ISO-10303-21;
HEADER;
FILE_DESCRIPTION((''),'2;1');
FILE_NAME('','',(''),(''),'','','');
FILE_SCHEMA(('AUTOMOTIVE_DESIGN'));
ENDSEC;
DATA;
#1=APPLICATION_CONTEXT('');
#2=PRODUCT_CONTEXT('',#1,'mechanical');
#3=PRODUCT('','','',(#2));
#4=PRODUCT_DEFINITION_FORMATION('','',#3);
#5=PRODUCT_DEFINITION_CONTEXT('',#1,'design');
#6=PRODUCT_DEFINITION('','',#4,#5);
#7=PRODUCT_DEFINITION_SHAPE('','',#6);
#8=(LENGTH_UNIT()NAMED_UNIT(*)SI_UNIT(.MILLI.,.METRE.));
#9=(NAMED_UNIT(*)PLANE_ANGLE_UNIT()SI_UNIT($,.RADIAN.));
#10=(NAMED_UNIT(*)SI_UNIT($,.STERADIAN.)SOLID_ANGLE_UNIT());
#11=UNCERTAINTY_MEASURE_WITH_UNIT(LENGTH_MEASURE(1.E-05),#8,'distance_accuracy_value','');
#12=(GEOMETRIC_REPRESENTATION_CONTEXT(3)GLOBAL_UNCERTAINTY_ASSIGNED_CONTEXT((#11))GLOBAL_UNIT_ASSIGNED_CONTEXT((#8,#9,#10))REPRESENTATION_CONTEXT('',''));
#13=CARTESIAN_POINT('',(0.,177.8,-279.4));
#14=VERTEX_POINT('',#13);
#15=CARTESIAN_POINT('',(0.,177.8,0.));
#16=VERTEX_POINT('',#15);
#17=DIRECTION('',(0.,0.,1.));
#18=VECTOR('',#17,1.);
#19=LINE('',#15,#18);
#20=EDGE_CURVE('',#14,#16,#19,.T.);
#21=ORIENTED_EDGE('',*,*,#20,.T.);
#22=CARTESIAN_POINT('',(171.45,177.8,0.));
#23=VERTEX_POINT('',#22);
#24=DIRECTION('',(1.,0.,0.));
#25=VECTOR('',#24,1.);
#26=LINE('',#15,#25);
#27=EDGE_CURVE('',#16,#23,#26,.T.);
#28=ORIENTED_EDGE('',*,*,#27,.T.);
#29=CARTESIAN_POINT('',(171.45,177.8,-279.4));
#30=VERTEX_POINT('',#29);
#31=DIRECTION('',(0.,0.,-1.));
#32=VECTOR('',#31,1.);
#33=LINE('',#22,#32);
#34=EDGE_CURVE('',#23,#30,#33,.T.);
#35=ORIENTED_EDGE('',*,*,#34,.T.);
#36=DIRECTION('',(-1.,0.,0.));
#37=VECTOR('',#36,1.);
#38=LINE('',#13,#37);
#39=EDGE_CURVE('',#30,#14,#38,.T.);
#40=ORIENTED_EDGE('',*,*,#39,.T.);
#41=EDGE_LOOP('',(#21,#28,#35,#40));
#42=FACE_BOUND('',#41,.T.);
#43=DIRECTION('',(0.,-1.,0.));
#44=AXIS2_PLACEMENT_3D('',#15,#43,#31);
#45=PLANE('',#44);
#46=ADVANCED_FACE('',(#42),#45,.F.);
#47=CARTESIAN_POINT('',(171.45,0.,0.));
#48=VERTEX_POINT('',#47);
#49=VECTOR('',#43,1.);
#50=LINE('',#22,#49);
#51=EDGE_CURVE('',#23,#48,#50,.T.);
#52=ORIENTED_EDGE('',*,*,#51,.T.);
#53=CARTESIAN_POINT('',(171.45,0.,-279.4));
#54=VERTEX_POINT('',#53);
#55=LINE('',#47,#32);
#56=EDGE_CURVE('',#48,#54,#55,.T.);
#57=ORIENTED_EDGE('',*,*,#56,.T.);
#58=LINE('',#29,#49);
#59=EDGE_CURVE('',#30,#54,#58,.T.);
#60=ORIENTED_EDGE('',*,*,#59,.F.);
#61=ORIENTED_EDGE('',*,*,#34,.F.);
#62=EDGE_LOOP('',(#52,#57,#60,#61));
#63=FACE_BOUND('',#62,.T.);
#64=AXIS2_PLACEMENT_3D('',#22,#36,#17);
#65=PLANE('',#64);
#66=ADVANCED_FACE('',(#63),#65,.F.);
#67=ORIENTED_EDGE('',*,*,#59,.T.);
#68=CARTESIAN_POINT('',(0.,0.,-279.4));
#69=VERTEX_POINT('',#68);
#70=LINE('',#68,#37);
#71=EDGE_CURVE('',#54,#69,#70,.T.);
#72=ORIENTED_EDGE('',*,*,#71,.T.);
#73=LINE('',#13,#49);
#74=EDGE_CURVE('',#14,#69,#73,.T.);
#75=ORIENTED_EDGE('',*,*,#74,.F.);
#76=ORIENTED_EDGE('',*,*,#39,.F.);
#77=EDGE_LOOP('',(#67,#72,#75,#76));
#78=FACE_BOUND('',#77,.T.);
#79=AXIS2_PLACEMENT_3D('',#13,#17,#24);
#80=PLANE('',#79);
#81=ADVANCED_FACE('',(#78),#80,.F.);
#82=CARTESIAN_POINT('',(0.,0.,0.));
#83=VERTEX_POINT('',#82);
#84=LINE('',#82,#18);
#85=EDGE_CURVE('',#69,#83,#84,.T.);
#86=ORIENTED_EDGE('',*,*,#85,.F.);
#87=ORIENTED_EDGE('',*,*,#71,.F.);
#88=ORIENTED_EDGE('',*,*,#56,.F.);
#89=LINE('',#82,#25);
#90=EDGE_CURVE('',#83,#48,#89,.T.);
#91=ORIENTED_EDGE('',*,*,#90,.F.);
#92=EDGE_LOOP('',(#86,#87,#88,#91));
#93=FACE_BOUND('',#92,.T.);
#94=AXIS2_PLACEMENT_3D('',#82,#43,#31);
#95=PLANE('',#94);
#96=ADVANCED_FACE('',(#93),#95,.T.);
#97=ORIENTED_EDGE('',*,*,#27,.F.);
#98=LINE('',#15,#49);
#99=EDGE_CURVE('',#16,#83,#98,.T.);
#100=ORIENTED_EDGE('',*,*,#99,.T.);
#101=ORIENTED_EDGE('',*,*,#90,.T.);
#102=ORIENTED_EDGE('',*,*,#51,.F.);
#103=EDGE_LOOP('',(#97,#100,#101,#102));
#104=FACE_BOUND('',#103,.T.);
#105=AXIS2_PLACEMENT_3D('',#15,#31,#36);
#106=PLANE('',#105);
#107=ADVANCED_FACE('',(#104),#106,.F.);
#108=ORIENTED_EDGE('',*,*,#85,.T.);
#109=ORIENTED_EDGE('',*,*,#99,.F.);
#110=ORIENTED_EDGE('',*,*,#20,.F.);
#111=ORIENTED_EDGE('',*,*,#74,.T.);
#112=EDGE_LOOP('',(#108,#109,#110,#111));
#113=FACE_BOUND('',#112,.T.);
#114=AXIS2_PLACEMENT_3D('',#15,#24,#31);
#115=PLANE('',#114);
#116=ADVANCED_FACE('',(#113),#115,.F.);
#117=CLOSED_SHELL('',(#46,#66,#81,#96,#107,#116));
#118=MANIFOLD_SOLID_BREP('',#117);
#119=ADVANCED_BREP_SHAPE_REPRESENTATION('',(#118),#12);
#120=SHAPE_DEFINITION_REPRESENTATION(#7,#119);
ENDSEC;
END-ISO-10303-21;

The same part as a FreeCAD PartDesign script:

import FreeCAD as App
import Part
import Sketcher

V = App.Vector
Q = App.Units.Quantity

doc = App.newDocument("Part")
params = doc.addObject("Spreadsheet::Sheet", "Params")
for row, (alias, value) in enumerate([
    ("sketch1_height", "11 in"),
    ("sketch1_width", "6.75 in"),
    ("pad1_length", "7 in"),
], start=1):
    params.set(f"A{row}", alias)
    params.set(f"B{row}", "=" + value)
    params.setAlias(f"B{row}", alias)

body = doc.addObject("PartDesign::Body", "Body")

sketch1 = body.newObject("Sketcher::SketchObject", "Sketch")
sketch1.AttachmentSupport = (doc.getObject("XZ_Plane"), [""])
sketch1.MapMode = "FlatFace"
sketch1.addGeometry([
    Part.LineSegment(V(0, -279.4, 0), V(0, 0, 0)),
    Part.LineSegment(V(0, 0, 0), V(171.45, 0, 0)),
    Part.LineSegment(V(171.45, 0, 0), V(171.45, -279.4, 0)),
    Part.LineSegment(V(171.45, -279.4, 0), V(0, -279.4, 0)),
], False)
sketch1.addConstraint([
    Sketcher.Constraint("Coincident", 0, 2, 1, 1),
    Sketcher.Constraint("Coincident", 1, 2, 2, 1),
    Sketcher.Constraint("Coincident", 2, 2, 3, 1),
    Sketcher.Constraint("Coincident", 3, 2, 0, 1),
    Sketcher.Constraint("Vertical", 0),
    Sketcher.Constraint("Horizontal", 1),
    Sketcher.Constraint("Vertical", 2),
    Sketcher.Constraint("Horizontal", 3),
    Sketcher.Constraint("Coincident", 0, 2, -1, 1),
    Sketcher.Constraint("DistanceY", 0, 1, 0, 2, Q("11 in")),
    Sketcher.Constraint("DistanceX", 1, 1, 1, 2, Q("6.75 in")),
])
sketch1.setExpression("Constraints[9]", "Params.sketch1_height")
sketch1.setExpression("Constraints[10]", "Params.sketch1_width")
pad1 = body.newObject("PartDesign::Pad", "Pad")
pad1.Profile = sketch1
pad1.setExpression("Length", "Params.pad1_length")
pad1.Reversed = True

doc.recompute()
